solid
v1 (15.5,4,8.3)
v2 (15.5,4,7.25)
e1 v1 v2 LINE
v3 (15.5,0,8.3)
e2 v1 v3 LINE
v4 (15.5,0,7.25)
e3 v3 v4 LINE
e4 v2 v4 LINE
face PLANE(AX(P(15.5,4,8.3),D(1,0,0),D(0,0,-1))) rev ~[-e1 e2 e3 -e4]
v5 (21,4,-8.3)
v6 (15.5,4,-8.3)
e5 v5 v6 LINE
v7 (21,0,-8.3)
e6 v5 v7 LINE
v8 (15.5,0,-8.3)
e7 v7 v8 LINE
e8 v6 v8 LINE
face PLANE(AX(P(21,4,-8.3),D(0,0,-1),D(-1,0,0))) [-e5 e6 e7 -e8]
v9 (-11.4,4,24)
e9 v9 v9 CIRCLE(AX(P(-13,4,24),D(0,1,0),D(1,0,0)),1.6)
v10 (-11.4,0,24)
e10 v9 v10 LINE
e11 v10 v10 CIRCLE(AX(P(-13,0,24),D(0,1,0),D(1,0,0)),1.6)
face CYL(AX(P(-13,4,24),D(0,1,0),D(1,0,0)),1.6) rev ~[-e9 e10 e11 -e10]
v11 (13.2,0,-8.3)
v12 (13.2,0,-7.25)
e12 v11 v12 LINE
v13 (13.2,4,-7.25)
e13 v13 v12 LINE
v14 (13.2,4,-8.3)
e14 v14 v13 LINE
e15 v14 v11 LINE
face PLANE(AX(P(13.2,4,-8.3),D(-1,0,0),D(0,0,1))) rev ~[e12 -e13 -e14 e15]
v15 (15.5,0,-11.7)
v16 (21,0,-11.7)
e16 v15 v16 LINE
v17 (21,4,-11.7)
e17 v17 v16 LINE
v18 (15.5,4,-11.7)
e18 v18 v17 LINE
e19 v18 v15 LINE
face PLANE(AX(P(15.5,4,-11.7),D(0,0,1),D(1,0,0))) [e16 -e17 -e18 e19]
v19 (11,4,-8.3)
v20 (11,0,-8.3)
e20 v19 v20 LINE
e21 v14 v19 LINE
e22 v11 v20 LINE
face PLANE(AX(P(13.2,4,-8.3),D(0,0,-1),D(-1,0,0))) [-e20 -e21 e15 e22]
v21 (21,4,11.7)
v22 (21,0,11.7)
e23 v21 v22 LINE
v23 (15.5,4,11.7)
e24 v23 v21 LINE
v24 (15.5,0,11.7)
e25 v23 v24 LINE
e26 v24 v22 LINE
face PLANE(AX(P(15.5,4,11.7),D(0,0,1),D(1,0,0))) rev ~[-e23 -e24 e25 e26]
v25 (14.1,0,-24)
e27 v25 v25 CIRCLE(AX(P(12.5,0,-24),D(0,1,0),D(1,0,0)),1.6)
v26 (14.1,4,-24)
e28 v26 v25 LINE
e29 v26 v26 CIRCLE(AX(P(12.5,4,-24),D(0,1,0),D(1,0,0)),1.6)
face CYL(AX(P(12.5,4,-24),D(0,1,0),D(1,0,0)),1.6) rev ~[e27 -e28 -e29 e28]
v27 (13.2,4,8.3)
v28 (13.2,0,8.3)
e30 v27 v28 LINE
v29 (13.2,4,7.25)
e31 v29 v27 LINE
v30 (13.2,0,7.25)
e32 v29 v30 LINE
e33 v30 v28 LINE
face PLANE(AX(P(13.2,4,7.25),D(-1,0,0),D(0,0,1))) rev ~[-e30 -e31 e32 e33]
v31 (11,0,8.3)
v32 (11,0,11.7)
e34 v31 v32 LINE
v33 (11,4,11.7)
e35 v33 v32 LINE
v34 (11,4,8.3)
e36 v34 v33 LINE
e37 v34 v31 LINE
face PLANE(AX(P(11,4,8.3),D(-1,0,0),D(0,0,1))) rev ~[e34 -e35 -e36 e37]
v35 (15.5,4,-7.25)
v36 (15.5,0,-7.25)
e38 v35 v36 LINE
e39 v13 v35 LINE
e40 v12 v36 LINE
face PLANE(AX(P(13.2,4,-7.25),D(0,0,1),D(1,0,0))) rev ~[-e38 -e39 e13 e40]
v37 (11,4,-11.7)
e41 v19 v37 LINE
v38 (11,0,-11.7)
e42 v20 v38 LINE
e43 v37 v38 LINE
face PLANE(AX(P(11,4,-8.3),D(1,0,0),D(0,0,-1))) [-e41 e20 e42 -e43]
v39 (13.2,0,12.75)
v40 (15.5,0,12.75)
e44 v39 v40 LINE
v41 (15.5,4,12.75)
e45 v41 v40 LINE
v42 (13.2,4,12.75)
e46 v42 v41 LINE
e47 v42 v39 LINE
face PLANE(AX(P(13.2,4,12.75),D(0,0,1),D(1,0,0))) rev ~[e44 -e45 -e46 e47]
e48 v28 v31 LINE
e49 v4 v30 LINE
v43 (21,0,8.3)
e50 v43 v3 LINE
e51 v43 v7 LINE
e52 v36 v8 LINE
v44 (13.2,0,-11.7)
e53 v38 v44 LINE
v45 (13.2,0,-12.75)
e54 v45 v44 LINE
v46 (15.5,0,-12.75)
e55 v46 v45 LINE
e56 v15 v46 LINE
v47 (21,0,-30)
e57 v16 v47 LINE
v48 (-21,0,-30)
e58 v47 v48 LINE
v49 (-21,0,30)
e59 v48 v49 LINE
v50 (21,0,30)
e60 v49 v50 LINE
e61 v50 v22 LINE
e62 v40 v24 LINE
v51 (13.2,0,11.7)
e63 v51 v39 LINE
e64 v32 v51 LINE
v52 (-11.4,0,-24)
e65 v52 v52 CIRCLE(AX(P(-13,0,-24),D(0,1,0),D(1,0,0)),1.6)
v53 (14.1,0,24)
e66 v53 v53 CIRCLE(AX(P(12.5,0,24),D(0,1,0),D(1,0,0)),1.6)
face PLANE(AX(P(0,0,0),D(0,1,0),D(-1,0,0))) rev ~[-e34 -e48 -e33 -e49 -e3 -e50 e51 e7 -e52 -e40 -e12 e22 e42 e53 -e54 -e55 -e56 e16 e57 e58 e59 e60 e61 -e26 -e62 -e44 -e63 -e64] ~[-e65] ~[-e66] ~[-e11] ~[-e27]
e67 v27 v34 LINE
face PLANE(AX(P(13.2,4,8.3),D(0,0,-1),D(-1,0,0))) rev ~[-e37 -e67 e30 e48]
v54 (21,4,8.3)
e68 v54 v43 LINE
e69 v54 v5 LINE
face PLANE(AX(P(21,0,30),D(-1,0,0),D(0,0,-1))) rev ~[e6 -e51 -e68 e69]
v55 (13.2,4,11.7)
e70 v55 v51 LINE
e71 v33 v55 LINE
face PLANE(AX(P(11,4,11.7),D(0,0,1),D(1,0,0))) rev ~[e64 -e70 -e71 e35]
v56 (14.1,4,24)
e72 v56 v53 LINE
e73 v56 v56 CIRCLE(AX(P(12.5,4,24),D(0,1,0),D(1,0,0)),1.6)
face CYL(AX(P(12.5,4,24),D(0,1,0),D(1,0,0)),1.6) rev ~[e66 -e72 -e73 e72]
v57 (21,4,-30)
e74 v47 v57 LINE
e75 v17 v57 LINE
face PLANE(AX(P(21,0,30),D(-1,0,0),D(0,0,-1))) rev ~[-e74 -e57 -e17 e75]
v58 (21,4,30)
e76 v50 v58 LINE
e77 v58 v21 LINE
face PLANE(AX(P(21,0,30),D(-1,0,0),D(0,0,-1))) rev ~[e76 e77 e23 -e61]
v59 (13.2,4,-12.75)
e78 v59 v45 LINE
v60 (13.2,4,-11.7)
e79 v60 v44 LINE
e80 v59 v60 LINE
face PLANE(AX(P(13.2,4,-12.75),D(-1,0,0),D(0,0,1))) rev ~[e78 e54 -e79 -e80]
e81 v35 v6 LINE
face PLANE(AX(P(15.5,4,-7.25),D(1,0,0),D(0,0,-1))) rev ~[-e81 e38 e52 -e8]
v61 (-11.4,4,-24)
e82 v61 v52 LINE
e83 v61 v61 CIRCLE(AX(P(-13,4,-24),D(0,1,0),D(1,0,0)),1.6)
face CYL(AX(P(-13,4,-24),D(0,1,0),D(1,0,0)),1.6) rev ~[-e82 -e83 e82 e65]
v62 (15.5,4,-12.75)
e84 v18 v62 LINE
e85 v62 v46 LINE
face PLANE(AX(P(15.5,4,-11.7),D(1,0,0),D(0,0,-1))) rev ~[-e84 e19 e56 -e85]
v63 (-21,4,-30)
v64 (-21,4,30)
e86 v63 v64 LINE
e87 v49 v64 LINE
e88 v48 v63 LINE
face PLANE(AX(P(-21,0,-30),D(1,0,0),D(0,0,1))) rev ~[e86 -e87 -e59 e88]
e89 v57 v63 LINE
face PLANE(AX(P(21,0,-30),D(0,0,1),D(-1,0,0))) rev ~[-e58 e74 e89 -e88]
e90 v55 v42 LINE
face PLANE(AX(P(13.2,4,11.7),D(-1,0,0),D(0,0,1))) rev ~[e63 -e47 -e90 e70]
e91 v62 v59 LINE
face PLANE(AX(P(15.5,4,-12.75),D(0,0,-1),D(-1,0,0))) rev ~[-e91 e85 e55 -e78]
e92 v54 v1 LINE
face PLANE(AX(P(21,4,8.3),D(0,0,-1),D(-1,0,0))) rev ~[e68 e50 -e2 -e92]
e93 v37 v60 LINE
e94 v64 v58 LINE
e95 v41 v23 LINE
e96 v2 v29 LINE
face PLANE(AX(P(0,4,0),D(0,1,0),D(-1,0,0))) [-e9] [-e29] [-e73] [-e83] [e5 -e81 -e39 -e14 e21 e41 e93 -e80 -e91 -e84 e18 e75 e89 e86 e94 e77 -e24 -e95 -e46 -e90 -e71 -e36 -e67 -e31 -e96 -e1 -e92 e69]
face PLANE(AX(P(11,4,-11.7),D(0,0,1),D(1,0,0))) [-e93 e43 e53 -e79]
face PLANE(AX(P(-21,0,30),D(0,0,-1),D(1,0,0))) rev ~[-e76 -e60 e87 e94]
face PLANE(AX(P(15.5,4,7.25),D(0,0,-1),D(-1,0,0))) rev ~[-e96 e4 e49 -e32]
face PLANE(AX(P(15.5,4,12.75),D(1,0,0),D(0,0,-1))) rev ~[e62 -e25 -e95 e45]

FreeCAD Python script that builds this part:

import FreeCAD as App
import Part
import Sketcher
Q = App.Units.Quantity

doc = App.newDocument("Part")
body = doc.addObject("PartDesign::Body", "Body")

sketch1 = body.newObject("Sketcher::SketchObject", "Sketch")
sketch1.AttachmentSupport = (doc.getObject("XZ_Plane"), [""])
sketch1.MapMode = "FlatFace"
sketch1.addGeometry(Part.LineSegment(App.Vector(-21, -30, 0), App.Vector(-21, 30, 0)), False)
sketch1.addGeometry(Part.LineSegment(App.Vector(-21, 30, 0), App.Vector(21, 30, 0)), False)
sketch1.addGeometry(Part.LineSegment(App.Vector(21, 30, 0), App.Vector(21, -30, 0)), False)
sketch1.addGeometry(Part.LineSegment(App.Vector(21, -30, 0), App.Vector(-21, -30, 0)), False)
sketch1.addConstraint(Sketcher.Constraint("Coincident", 0, 2, 1, 1))
sketch1.addConstraint(Sketcher.Constraint("Coincident", 1, 2, 2, 1))
sketch1.addConstraint(Sketcher.Constraint("Coincident", 2, 2, 3, 1))
sketch1.addConstraint(Sketcher.Constraint("Coincident", 3, 2, 0, 1))
sketch1.addConstraint(Sketcher.Constraint("Vertical", 0))
sketch1.addConstraint(Sketcher.Constraint("Horizontal", 1))
sketch1.addConstraint(Sketcher.Constraint("Vertical", 2))
sketch1.addConstraint(Sketcher.Constraint("Horizontal", 3))
sketch1.addConstraint(Sketcher.Constraint("Symmetric", 0, 2, 2, 2, -1, 1))
sketch1.addConstraint(Sketcher.Constraint("DistanceX", 1, 1, 1, 2, Q("42 mm")))
sketch1.addConstraint(Sketcher.Constraint("DistanceY", 0, 1, 0, 2, Q("60 mm")))
pad1 = body.newObject("PartDesign::Pad", "Pad")
pad1.Profile = sketch1
pad1.Length = 4
pad1.Reversed = True

sketch2 = body.newObject("Sketcher::SketchObject", "Sketch001")
sketch2.AttachmentSupport = (doc.getObject("XZ_Plane"), [""])
sketch2.MapMode = "FlatFace"
sketch2.AttachmentOffset = App.Placement(App.Vector(0, 0, -4), App.Rotation())
sketch2.addGeometry(Part.Circle(App.Vector(-13, 24, 0), App.Vector(0, 0, 1), 1.6), False)
sketch2.addGeometry(Part.Circle(App.Vector(12.5, 24, 0), App.Vector(0, 0, 1), 1.6), False)
sketch2.addGeometry(Part.Circle(App.Vector(12.5, -24, 0), App.Vector(0, 0, 1), 1.6), False)
sketch2.addGeometry(Part.Circle(App.Vector(-13, -24, 0), App.Vector(0, 0, 1), 1.6), False)
sketch2.addConstraint(Sketcher.Constraint("Equal", 0, 1))
sketch2.addConstraint(Sketcher.Constraint("Equal", 1, 2))
sketch2.addConstraint(Sketcher.Constraint("Equal", 2, 3))
sketch2.addConstraint(Sketcher.Constraint("Symmetric", 1, 3, 2, 3, -1))
sketch2.addConstraint(Sketcher.Constraint("Symmetric", 0, 3, 3, 3, -1))
sketch2.addConstraint(Sketcher.Constraint("Horizontal", 0, 3, 1, 3))
sketch2.addConstraint(Sketcher.Constraint("Diameter", 0, Q("3.2 mm")))
sketch2.addConstraint(Sketcher.Constraint("DistanceX", 0, 3, 1, 3, Q("25.5 mm")))
sketch2.addConstraint(Sketcher.Constraint("DistanceX", 0, 3, -1, 1, Q("13 mm")))
sketch2.addConstraint(Sketcher.Constraint("DistanceY", -1, 1, 0, 3, Q("24 mm")))
pocket1 = body.newObject("PartDesign::Pocket", "Pocket")
pocket1.Profile = sketch2
pocket1.Length = 10
pocket1.Reversed = True

sketch3 = body.newObject("Sketcher::SketchObject", "Sketch002")
sketch3.AttachmentSupport = (doc.getObject("XZ_Plane"), [""])
sketch3.MapMode = "FlatFace"
sketch3.AttachmentOffset = App.Placement(App.Vector(0, 0, -4), App.Rotation())
sketch3.addGeometry(Part.LineSegment(App.Vector(15.5, 11.7, 0), App.Vector(21, 11.7, 0)), False)
sketch3.addGeometry(Part.LineSegment(App.Vector(21, 11.7, 0), App.Vector(21, 8.3, 0)), False)
sketch3.addGeometry(Part.LineSegment(App.Vector(21, 8.3, 0), App.Vector(15.5, 8.3, 0)), False)
sketch3.addGeometry(Part.LineSegment(App.Vector(15.5, 8.3, 0), App.Vector(15.5, 7.2, 0)), False)
sketch3.addGeometry(Part.LineSegment(App.Vector(15.5, 7.2, 0), App.Vector(13.2, 7.2, 0)), False)
sketch3.addGeometry(Part.LineSegment(App.Vector(13.2, 7.2, 0), App.Vector(13.2, 8.3, 0)), False)
sketch3.addGeometry(Part.LineSegment(App.Vector(13.2, 8.3, 0), App.Vector(11, 8.3, 0)), False)
sketch3.addGeometry(Part.LineSegment(App.Vector(11, 8.3, 0), App.Vector(11, 11.7, 0)), False)
sketch3.addGeometry(Part.LineSegment(App.Vector(11, 11.7, 0), App.Vector(13.2, 11.7, 0)), False)
sketch3.addGeometry(Part.LineSegment(App.Vector(13.2, 11.7, 0), App.Vector(13.2, 12.8, 0)), False)
sketch3.addGeometry(Part.LineSegment(App.Vector(13.2, 12.8, 0), App.Vector(15.5, 12.8, 0)), False)
sketch3.addGeometry(Part.LineSegment(App.Vector(15.5, 12.8, 0), App.Vector(15.5, 11.7, 0)), False)
sketch3.addGeometry(Part.LineSegment(App.Vector(15.5, -8.3, 0), App.Vector(21, -8.3, 0)), False)
sketch3.addGeometry(Part.LineSegment(App.Vector(21, -8.3, 0), App.Vector(21, -11.7, 0)), False)
sketch3.addGeometry(Part.LineSegment(App.Vector(21, -11.7, 0), App.Vector(15.5, -11.7, 0)), False)
sketch3.addGeometry(Part.LineSegment(App.Vector(15.5, -11.7, 0), App.Vector(15.5, -12.8, 0)), False)
sketch3.addGeometry(Part.LineSegment(App.Vector(15.5, -12.8, 0), App.Vector(13.2, -12.8, 0)), False)
sketch3.addGeometry(Part.LineSegment(App.Vector(13.2, -12.8, 0), App.Vector(13.2, -11.7, 0)), False)
sketch3.addGeometry(Part.LineSegment(App.Vector(13.2, -11.7, 0), App.Vector(11, -11.7, 0)), False)
sketch3.addGeometry(Part.LineSegment(App.Vector(11, -11.7, 0), App.Vector(11, -8.3, 0)), False)
sketch3.addGeometry(Part.LineSegment(App.Vector(11, -8.3, 0), App.Vector(13.2, -8.3, 0)), False)
sketch3.addGeometry(Part.LineSegment(App.Vector(13.2, -8.3, 0), App.Vector(13.2, -7.2, 0)), False)
sketch3.addGeometry(Part.LineSegment(App.Vector(13.2, -7.2, 0), App.Vector(15.5, -7.2, 0)), False)
sketch3.addGeometry(Part.LineSegment(App.Vector(15.5, -7.2, 0), App.Vector(15.5, -8.3, 0)), False)
sketch3.addConstraint(Sketcher.Constraint("Coincident", 0, 2, 1, 1))
sketch3.addConstraint(Sketcher.Constraint("Coincident", 1, 2, 2, 1))
sketch3.addConstraint(Sketcher.Constraint("Coincident", 2, 2, 3, 1))
sketch3.addConstraint(Sketcher.Constraint("Coincident", 3, 2, 4, 1))
sketch3.addConstraint(Sketcher.Constraint("Coincident", 4, 2, 5, 1))
sketch3.addConstraint(Sketcher.Constraint("Coincident", 5, 2, 6, 1))
sketch3.addConstraint(Sketcher.Constraint("Coincident", 6, 2, 7, 1))
sketch3.addConstraint(Sketcher.Constraint("Coincident", 7, 2, 8, 1))
sketch3.addConstraint(Sketcher.Constraint("Coincident", 8, 2, 9, 1))
sketch3.addConstraint(Sketcher.Constraint("Coincident", 9, 2, 10, 1))
sketch3.addConstraint(Sketcher.Constraint("Coincident", 10, 2, 11, 1))
sketch3.addConstraint(Sketcher.Constraint("Coincident", 11, 2, 0, 1))
sketch3.addConstraint(Sketcher.Constraint("Coincident", 12, 2, 13, 1))
sketch3.addConstraint(Sketcher.Constraint("Coincident", 13, 2, 14, 1))
sketch3.addConstraint(Sketcher.Constraint("Coincident", 14, 2, 15, 1))
sketch3.addConstraint(Sketcher.Constraint("Coincident", 15, 2, 16, 1))
sketch3.addConstraint(Sketcher.Constraint("Coincident", 16, 2, 17, 1))
sketch3.addConstraint(Sketcher.Constraint("Coincident", 17, 2, 18, 1))
sketch3.addConstraint(Sketcher.Constraint("Coincident", 18, 2, 19, 1))
sketch3.addConstraint(Sketcher.Constraint("Coincident", 19, 2, 20, 1))
sketch3.addConstraint(Sketcher.Constraint("Coincident", 20, 2, 21, 1))
sketch3.addConstraint(Sketcher.Constraint("Coincident", 21, 2, 22, 1))
sketch3.addConstraint(Sketcher.Constraint("Coincident", 22, 2, 23, 1))
sketch3.addConstraint(Sketcher.Constraint("Coincident", 23, 2, 12, 1))
sketch3.addConstraint(Sketcher.Constraint("Horizontal", 0))
sketch3.addConstraint(Sketcher.Constraint("Vertical", 1))
sketch3.addConstraint(Sketcher.Constraint("Horizontal", 2))
sketch3.addConstraint(Sketcher.Constraint("Vertical", 3))
sketch3.addConstraint(Sketcher.Constraint("Horizontal", 4))
sketch3.addConstraint(Sketcher.Constraint("Vertical", 5))
sketch3.addConstraint(Sketcher.Constraint("Horizontal", 6))
sketch3.addConstraint(Sketcher.Constraint("Vertical", 7))
sketch3.addConstraint(Sketcher.Constraint("Horizontal", 8))
sketch3.addConstraint(Sketcher.Constraint("Vertical", 9))
sketch3.addConstraint(Sketcher.Constraint("Horizontal", 10))
sketch3.addConstraint(Sketcher.Constraint("Vertical", 11))
sketch3.addConstraint(Sketcher.Constraint("Horizontal", 12))
sketch3.addConstraint(Sketcher.Constraint("Vertical", 13))
sketch3.addConstraint(Sketcher.Constraint("Horizontal", 14))
sketch3.addConstraint(Sketcher.Constraint("Vertical", 15))
sketch3.addConstraint(Sketcher.Constraint("Horizontal", 16))
sketch3.addConstraint(Sketcher.Constraint("Vertical", 17))
sketch3.addConstraint(Sketcher.Constraint("Horizontal", 18))
sketch3.addConstraint(Sketcher.Constraint("Vertical", 19))
sketch3.addConstraint(Sketcher.Constraint("Horizontal", 20))
sketch3.addConstraint(Sketcher.Constraint("Vertical", 21))
sketch3.addConstraint(Sketcher.Constraint("Horizontal", 22))
sketch3.addConstraint(Sketcher.Constraint("Vertical", 23))
sketch3.addConstraint(Sketcher.Constraint("Symmetric", 1, 2, 12, 2, -1))
sketch3.addConstraint(Sketcher.Constraint("Symmetric", 11, 2, 14, 2, -1))
sketch3.addConstraint(Sketcher.Constraint("Symmetric", 9, 2, 16, 2, -1))
sketch3.addConstraint(Sketcher.Constraint("Symmetric", 7, 2, 18, 2, -1))
sketch3.addConstraint(Sketcher.Constraint("Symmetric", 5, 2, 20, 2, -1))
sketch3.addConstraint(Sketcher.Constraint("Symmetric", 3, 2, 22, 2, -1))
sketch3.addConstraint(Sketcher.Constraint("Horizontal", 2, 2, 5, 2))
sketch3.addConstraint(Sketcher.Constraint("Horizontal", 0, 2, 7, 2))
sketch3.addConstraint(Sketcher.Constraint("Vertical", 5, 2, 8, 2))
sketch3.addConstraint(Sketcher.Constraint("Vertical", 3, 2, 10, 2))
sketch3.addConstraint(Sketcher.Constraint("Equal", 5, 9))
sketch3.addConstraint(Sketcher.Constraint("DistanceX", 0, 1, 0, 2, Q("5.5 mm")))
sketch3.addConstraint(Sketcher.Constraint("DistanceX", 4, 2, 4, 1, Q("2.3 mm")))
sketch3.addConstraint(Sketcher.Constraint("DistanceY", 1, 2, 1, 1, Q("3.4 mm")))
sketch3.addConstraint(Sketcher.Constraint("DistanceX", 6, 2, 1, 2, Q("10 mm")))
sketch3.addConstraint(Sketcher.Constraint("DistanceX", -1, 1, 0, 2, Q("21 mm")))
sketch3.addConstraint(Sketcher.Constraint("DistanceY", 13, 2, 1, 2, Q("20 mm")))
sketch3.addConstraint(Sketcher.Constraint("DistanceY", 3, 2, 3, 1, Q("1.05 mm")))
pocket2 = body.newObject("PartDesign::Pocket", "Pocket001")
pocket2.Profile = sketch3
pocket2.Length = 4
pocket2.Reversed = True

doc.recompute()
